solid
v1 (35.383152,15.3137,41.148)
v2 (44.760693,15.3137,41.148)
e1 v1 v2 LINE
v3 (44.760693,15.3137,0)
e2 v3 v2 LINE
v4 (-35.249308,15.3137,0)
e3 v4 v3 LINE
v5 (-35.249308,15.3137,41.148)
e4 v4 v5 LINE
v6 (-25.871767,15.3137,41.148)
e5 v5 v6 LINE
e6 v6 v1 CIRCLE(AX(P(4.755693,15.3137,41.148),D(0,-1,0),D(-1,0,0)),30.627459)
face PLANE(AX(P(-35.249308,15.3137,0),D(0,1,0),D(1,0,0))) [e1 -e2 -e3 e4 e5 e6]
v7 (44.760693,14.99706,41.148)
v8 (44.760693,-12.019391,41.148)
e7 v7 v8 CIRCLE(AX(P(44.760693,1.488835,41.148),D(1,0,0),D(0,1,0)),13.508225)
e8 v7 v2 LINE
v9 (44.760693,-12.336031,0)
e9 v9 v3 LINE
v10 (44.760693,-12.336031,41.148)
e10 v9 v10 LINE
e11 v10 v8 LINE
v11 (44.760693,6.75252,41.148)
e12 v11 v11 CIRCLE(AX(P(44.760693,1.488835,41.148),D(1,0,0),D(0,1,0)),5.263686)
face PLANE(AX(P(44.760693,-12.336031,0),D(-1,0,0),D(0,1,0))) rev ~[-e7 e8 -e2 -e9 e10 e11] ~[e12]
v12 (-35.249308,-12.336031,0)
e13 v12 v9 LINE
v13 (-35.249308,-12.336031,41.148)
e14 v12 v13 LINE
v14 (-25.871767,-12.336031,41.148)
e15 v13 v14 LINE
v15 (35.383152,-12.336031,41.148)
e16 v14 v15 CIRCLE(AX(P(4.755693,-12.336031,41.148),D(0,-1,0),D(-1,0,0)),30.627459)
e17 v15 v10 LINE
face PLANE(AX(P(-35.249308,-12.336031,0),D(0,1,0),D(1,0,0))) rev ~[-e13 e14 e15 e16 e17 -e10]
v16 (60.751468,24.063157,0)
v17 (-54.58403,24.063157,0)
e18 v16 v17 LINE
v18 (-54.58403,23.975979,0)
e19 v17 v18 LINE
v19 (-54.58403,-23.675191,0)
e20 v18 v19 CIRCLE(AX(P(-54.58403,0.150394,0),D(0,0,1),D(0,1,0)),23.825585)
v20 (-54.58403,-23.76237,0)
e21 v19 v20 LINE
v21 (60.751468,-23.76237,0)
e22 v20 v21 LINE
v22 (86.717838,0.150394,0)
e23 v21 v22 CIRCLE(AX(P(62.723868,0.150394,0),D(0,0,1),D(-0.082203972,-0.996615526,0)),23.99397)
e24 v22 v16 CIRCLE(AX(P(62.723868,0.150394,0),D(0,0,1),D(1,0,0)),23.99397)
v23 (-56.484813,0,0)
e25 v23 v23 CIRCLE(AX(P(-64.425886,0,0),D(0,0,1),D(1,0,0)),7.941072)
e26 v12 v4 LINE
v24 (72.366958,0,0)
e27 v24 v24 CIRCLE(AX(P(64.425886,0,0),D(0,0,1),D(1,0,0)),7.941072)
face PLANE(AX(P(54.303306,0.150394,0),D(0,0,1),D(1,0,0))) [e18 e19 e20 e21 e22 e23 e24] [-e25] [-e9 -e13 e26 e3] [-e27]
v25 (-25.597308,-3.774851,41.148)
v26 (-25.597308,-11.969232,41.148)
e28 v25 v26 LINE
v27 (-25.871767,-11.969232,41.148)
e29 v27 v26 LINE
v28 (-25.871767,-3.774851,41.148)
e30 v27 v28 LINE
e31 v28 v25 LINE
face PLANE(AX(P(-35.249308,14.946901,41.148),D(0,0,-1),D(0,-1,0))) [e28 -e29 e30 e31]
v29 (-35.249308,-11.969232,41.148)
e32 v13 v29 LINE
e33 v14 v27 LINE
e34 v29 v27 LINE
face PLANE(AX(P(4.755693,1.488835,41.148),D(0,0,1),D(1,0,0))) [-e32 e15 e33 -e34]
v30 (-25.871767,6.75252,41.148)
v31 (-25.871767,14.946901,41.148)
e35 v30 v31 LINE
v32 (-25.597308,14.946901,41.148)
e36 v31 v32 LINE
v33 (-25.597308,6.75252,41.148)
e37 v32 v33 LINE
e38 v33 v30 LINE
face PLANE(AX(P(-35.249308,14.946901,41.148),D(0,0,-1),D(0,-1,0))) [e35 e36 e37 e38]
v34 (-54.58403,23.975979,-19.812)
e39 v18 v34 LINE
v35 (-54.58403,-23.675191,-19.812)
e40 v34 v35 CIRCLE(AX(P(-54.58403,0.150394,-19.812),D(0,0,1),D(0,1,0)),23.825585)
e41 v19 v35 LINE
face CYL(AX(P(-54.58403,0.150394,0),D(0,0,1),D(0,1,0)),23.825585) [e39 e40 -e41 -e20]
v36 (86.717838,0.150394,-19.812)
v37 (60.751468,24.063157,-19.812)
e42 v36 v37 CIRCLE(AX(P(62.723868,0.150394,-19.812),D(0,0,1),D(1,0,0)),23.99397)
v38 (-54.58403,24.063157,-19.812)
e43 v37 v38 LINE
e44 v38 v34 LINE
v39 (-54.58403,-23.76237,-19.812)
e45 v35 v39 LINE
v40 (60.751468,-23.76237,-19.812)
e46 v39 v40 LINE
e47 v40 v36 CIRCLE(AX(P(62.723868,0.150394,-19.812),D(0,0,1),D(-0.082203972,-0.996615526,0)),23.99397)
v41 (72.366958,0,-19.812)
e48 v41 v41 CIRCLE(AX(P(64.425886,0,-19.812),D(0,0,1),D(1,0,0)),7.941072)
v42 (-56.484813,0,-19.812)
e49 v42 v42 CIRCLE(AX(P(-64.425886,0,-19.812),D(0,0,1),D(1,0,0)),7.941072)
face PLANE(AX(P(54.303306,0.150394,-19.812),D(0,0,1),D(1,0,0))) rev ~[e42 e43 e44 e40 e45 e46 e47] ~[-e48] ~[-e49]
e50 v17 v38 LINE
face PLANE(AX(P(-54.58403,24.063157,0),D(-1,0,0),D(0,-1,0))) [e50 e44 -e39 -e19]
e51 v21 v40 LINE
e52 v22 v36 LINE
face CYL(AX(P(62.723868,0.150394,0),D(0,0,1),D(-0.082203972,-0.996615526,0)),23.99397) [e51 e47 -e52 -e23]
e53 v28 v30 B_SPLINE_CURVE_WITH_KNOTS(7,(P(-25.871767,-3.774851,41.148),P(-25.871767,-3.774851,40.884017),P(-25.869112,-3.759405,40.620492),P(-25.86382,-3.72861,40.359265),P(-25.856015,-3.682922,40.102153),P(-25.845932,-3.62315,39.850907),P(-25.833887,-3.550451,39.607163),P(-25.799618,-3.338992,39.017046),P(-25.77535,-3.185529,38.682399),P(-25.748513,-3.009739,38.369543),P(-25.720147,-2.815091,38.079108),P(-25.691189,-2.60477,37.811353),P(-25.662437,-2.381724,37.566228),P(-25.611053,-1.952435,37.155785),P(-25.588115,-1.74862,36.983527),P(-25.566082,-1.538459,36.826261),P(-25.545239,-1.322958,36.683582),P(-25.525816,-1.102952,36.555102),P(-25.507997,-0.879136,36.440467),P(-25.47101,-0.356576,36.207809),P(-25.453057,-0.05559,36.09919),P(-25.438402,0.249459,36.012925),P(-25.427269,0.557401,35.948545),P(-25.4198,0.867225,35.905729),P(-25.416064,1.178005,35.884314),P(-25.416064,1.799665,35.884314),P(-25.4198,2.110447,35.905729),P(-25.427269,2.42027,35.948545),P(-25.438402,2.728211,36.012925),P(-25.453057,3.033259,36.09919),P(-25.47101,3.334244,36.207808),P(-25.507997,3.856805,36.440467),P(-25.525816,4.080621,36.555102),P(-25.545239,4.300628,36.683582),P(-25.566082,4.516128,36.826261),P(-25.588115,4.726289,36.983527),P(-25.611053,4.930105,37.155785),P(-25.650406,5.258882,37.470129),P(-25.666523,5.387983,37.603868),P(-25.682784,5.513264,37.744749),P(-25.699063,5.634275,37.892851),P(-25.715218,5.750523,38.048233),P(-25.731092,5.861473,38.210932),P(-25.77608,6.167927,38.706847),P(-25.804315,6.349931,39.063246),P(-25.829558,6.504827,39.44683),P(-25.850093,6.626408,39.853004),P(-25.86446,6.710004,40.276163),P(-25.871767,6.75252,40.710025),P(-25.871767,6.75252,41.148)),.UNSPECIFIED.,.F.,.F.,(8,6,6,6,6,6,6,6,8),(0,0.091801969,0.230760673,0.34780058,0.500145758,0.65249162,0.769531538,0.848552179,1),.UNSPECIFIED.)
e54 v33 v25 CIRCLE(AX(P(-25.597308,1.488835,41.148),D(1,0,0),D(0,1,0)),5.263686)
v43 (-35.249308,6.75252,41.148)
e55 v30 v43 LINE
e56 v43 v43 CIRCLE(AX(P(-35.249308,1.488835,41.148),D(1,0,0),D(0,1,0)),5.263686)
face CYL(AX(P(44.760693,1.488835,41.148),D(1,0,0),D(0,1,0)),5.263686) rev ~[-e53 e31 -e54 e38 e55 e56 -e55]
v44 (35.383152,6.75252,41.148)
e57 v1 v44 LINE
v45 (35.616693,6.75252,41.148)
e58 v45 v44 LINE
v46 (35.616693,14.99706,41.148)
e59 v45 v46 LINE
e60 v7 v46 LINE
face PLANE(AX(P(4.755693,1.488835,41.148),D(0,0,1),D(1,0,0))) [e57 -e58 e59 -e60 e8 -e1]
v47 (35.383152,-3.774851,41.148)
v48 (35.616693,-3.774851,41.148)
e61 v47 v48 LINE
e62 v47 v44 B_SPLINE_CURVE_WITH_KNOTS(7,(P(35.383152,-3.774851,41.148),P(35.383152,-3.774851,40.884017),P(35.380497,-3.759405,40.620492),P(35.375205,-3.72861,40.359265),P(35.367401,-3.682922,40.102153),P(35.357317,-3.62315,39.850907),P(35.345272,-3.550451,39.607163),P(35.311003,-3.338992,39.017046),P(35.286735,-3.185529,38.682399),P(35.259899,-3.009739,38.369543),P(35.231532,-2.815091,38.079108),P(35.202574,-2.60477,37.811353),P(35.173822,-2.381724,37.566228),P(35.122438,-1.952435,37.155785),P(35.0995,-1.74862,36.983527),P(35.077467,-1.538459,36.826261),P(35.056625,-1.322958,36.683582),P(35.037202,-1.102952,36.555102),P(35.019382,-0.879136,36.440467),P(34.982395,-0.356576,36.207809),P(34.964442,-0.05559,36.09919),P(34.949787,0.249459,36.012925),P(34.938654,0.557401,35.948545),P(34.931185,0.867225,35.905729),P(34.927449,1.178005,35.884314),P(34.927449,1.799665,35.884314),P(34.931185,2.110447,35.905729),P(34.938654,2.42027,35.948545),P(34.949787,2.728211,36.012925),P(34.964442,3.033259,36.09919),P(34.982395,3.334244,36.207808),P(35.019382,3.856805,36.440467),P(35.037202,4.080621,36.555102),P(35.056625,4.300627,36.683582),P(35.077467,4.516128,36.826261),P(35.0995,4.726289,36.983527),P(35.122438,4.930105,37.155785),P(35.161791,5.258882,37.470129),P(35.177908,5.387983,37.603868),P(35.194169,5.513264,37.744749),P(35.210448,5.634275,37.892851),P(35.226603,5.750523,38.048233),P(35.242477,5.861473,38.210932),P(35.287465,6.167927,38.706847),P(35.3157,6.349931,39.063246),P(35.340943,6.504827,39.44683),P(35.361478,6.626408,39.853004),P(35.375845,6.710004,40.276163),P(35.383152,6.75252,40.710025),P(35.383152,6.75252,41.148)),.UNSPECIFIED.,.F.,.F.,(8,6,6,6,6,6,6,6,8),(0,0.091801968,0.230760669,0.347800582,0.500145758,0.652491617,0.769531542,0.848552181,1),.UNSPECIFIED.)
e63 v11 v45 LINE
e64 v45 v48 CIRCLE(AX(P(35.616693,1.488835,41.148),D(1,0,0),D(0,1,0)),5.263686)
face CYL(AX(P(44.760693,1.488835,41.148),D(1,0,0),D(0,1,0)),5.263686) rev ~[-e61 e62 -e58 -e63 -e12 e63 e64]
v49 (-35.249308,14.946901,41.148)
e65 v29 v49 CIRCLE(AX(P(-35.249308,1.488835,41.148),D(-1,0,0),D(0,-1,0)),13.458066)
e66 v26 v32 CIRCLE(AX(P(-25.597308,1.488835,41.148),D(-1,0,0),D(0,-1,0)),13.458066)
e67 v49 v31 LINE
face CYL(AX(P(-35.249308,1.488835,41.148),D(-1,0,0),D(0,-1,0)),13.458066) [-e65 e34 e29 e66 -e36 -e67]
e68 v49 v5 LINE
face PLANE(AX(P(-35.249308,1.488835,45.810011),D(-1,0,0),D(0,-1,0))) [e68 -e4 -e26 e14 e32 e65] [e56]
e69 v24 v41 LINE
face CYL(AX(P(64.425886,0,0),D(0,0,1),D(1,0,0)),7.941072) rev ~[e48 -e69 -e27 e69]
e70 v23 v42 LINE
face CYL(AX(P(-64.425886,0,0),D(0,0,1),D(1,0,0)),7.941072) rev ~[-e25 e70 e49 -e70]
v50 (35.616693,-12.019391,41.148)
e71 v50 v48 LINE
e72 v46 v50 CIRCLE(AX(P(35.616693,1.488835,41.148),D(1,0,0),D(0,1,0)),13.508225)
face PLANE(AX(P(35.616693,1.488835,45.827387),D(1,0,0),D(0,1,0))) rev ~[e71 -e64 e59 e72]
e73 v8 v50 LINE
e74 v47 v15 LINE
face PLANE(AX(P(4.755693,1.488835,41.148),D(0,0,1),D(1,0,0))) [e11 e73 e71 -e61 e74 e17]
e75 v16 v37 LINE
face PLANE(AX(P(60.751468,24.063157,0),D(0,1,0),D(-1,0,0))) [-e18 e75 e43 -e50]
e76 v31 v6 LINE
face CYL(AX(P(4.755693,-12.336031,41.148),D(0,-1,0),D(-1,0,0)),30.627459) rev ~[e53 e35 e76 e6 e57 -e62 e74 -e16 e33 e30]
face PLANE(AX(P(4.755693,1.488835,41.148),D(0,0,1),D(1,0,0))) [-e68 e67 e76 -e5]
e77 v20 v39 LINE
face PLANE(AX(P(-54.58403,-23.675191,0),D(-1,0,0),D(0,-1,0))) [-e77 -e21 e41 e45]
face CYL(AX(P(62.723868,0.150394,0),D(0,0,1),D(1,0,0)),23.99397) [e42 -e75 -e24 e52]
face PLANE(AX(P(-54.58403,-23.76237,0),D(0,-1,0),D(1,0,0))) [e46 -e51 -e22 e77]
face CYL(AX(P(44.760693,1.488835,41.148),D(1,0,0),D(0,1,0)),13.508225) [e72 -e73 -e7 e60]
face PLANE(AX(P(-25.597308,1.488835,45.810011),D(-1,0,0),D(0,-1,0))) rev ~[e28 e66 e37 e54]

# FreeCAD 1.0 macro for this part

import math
import FreeCAD as App
import Part
import Sketcher
Q = App.Units.Quantity


def add_polygon(sketch, points):
    """Adds a closed chain of lines whose ends are joined by coincident constraints."""
    first, n = sketch.GeometryCount, len(points)
    for a, b in zip(points, points[1:] + points[:1]):
        sketch.addGeometry(Part.LineSegment(App.Vector(*a, 0), App.Vector(*b, 0)), False)
    for i in range(n):
        sketch.addConstraint(Sketcher.Constraint("Coincident", first + i, 2, first + (i + 1) % n, 1))

doc = App.newDocument("Part")
body = doc.addObject("PartDesign::Body", "Body")

# Sketch on XY plane
sketch1 = doc.addObject("Sketcher::SketchObject", "Sketch")
body.addObject(sketch1)
sketch1.AttachmentSupport = (doc.XY_Plane, [""])
sketch1.MapMode = "FlatFace"
sketch1.addGeometry([
    Part.LineSegment(App.Vector(60.75, 24.06, 0), App.Vector(-54.58, 24.06, 0)),  # 0
    Part.LineSegment(App.Vector(-54.58, 24.06, 0), App.Vector(-54.58, 23.98, 0)),  # 1
    Part.ArcOfCircle(Part.Circle(App.Vector(-54.58, 0.15, 0), App.Vector(0, 0, 1), 23.83), math.radians(90), math.radians(270)),  # 2
    Part.LineSegment(App.Vector(-54.58, -23.68, 0), App.Vector(-54.58, -23.76, 0)),  # 3
    Part.LineSegment(App.Vector(-54.58, -23.76, 0), App.Vector(60.75, -23.76, 0)),  # 4
    Part.ArcOfCircle(Part.Circle(App.Vector(62.72, 0.15, 0), App.Vector(0, 0, 1), 23.99), math.radians(-95), math.radians(0)),  # 5
    Part.ArcOfCircle(Part.Circle(App.Vector(62.72, 0.15, 0), App.Vector(0, 0, 1), 23.99), math.radians(0), math.radians(95)),  # 6
], False)
sketch1.addConstraint([
    Sketcher.Constraint("Coincident", 0, 2, 1, 1),
    Sketcher.Constraint("Coincident", 1, 2, 2, 1),
    Sketcher.Constraint("Coincident", 2, 2, 3, 1),
    Sketcher.Constraint("Coincident", 3, 2, 4, 1),
    Sketcher.Constraint("Coincident", 4, 2, 5, 1),
    Sketcher.Constraint("Tangent", 5, 2, 6, 1),
    Sketcher.Constraint("Coincident", 6, 2, 0, 1),
    Sketcher.Constraint("Horizontal", 0),
    Sketcher.Constraint("Vertical", 1),
    Sketcher.Constraint("Vertical", 3),
    Sketcher.Constraint("Horizontal", 4),
    Sketcher.Constraint("Equal", 5, 6),
    Sketcher.Constraint("Horizontal", 2, 3, 5, 3),
    Sketcher.Constraint("Horizontal", 6, 3, 5, 2),
    Sketcher.Constraint("Vertical", 2, 3, 0, 2),
    Sketcher.Constraint("Vertical", 1, 2, 2, 2),
    Sketcher.Constraint("Vertical", 4, 2, 6, 2),
    Sketcher.Constraint("Radius", 5, 23.99397),
    Sketcher.Constraint("DistanceX", 0, 2, 0, 1, 115.335498),
    Sketcher.Constraint("Radius", 2, 23.825585),
    Sketcher.Constraint("DistanceY", 1, 2, 1, 1, 0.087178),
    Sketcher.Constraint("DistanceX", 2, 3, -1, 1, 54.58403),
    Sketcher.Constraint("DistanceY", -1, 1, 1, 2, 23.975979),
])
pad1 = doc.addObject("PartDesign::Pad", "Pad")
body.addObject(pad1)
pad1.Profile = sketch1
pad1.Length = Q("0.78 in")
pad1.Reversed = True

# Sketch on XY plane
sketch2 = doc.addObject("Sketcher::SketchObject", "Sketch001")
body.addObject(sketch2)
sketch2.AttachmentSupport = (doc.XY_Plane, [""])
sketch2.MapMode = "FlatFace"
sketch2.addGeometry(Part.Circle(App.Vector(-64, 0, 0), App.Vector(0, 0, 1), 8), False)
sketch2.addConstraint([
    Sketcher.Constraint("PointOnObject", 0, 3, -1),
    Sketcher.Constraint("Diameter", 0, 15.882145),
    Sketcher.Constraint("DistanceX", 0, 3, -1, 1, 64.425886),
])
pocket1 = doc.addObject("PartDesign::Pocket", "Pocket")
body.addObject(pocket1)
pocket1.Profile = sketch2
pocket1.Length = Q("2.11 in")

# Sketch on XY plane
sketch3 = doc.addObject("Sketcher::SketchObject", "Sketch002")
body.addObject(sketch3)
sketch3.AttachmentSupport = (doc.XY_Plane, [""])
sketch3.MapMode = "FlatFace"
sketch3.addGeometry([
    Part.Circle(App.Vector(-64, 0, 0), App.Vector(0, 0, 1), 8),
    Part.Circle(App.Vector(64, 0, 0), App.Vector(0, 0, 1), 8),
], False)
sketch3.addConstraint([
    Sketcher.Constraint("Equal", 0, 1),
    Sketcher.Constraint("Symmetric", 0, 3, 1, 3, -1, 1),
    Sketcher.Constraint("PointOnObject", 0, 3, -1),
    Sketcher.Constraint("Diameter", 0, 15.882145),
    Sketcher.Constraint("DistanceX", 0, 3, 1, 3, 128.851771),
])
pocket2 = doc.addObject("PartDesign::Pocket", "Pocket001")
body.addObject(pocket2)
pocket2.Profile = sketch3
pocket2.Length = Q("2.84 in")

# Sketch on XY plane
sketch4 = doc.addObject("Sketcher::SketchObject", "Sketch003")
body.addObject(sketch4)
sketch4.AttachmentSupport = (doc.XY_Plane, [""])
sketch4.MapMode = "FlatFace"
add_polygon(sketch4, [(-35, 15), (-35, -12), (45, -12), (45, 15)])  # lines 0-3
sketch4.addConstraint([
    Sketcher.Constraint("Vertical", 0),
    Sketcher.Constraint("Horizontal", 1),
    Sketcher.Constraint("Vertical", 2),
    Sketcher.Constraint("Horizontal", 3),
    Sketcher.Constraint("DistanceX", 1, 1, 1, 2, Q("3.15 in")),
    Sketcher.Constraint("DistanceY", 0, 2, 0, 1, 27.64973),
    Sketcher.Constraint("DistanceY", -1, 1, 2, 2, 15.3137),
    Sketcher.Constraint("DistanceX", 0, 2, -1, 1, 35.249308),
])
pad2 = doc.addObject("PartDesign::Pad", "Pad001")
body.addObject(pad2)
pad2.Profile = sketch4
pad2.Length = Q("1.62 in")

# Sketch on XZ plane
sketch5 = doc.addObject("Sketcher::SketchObject", "Sketch004")
body.addObject(sketch5)
sketch5.AttachmentSupport = (doc.XZ_Plane, [""])
sketch5.MapMode = "FlatFace"
sketch5.AttachmentOffset = App.Placement(App.Vector(0, 0, 12.336031), App.Rotation())
sketch5.addGeometry(Part.Circle(App.Vector(5, 41, 0), App.Vector(0, 0, 1), 31), False)
sketch5.addConstraint([
    Sketcher.Constraint("DistanceY", -1, 1, 0, 3, Q("1.62 in")),
    Sketcher.Constraint("Diameter", 0, 61.254919),
    Sketcher.Constraint("DistanceX", -1, 1, 0, 3, 4.755693),
])
pocket3 = doc.addObject("PartDesign::Pocket", "Pocket002")
body.addObject(pocket3)
pocket3.Profile = sketch5
pocket3.Length = Q("2.54 in")

# Sketch on YZ plane
sketch6 = doc.addObject("Sketcher::SketchObject", "Sketch005")
body.addObject(sketch6)
sketch6.AttachmentSupport = (doc.YZ_Plane, [""])
sketch6.MapMode = "FlatFace"
sketch6.AttachmentOffset = App.Placement(App.Vector(0, 0, -35.249308), App.Rotation())
sketch6.addGeometry([
    Part.LineSegment(App.Vector(15, 41, 0), App.Vector(-12, 41, 0)),
    Part.ArcOfCircle(Part.Circle(App.Vector(1, 41, 0), App.Vector(0, 0, 1), 13), math.radians(0), math.radians(180)),
], False)
sketch6.addConstraint([
    Sketcher.Constraint("Coincident", 0, 1, 1, 1),
    Sketcher.Constraint("Coincident", 1, 2, 0, 2),
    Sketcher.Constraint("Horizontal", 0),
    Sketcher.Constraint("Horizontal", 1, 3, 0, 1),
    Sketcher.Constraint("DistanceY", -1, 1, 1, 3, Q("1.62 in")),
    Sketcher.Constraint("Radius", 1, 13.458066),
    Sketcher.Constraint("DistanceX", -1, 1, 0, 1, 14.946901),
])
pad3 = doc.addObject("PartDesign::Pad", "Pad002")
body.addObject(pad3)
pad3.Profile = sketch6
pad3.Length = Q("0.38 in")

# Sketch on YZ plane
sketch7 = doc.addObject("Sketcher::SketchObject", "Sketch006")
body.addObject(sketch7)
sketch7.AttachmentSupport = (doc.YZ_Plane, [""])
sketch7.MapMode = "FlatFace"
sketch7.AttachmentOffset = App.Placement(App.Vector(0, 0, 44.760693), App.Rotation())
sketch7.addGeometry([
    Part.LineSegment(App.Vector(-12, 41, 0), App.Vector(15, 41, 0)),
    Part.ArcOfCircle(Part.Circle(App.Vector(1, 41, 0), App.Vector(0, 0, 1), 14), math.radians(0), math.radians(180)),
], False)
sketch7.addConstraint([
    Sketcher.Constraint("Coincident", 0, 1, 1, 2),
    Sketcher.Constraint("Coincident", 1, 1, 0, 2),
    Sketcher.Constraint("Horizontal", 0),
    Sketcher.Constraint("Horizontal", 1, 3, 0, 1),
    Sketcher.Constraint("DistanceY", -1, 1, 1, 3, Q("1.62 in")),
    Sketcher.Constraint("Radius", 1, 13.508225),
    Sketcher.Constraint("DistanceX", 0, 1, -1, 1, 12.019391),
])
pad4 = doc.addObject("PartDesign::Pad", "Pad003")
body.addObject(pad4)
pad4.Profile = sketch7
pad4.Length = Q("0.36 in")
pad4.Reversed = True

# Sketch on YZ plane
sketch8 = doc.addObject("Sketcher::SketchObject", "Sketch007")
body.addObject(sketch8)
sketch8.AttachmentSupport = (doc.YZ_Plane, [""])
sketch8.MapMode = "FlatFace"
sketch8.AttachmentOffset = App.Placement(App.Vector(0, 0, 44.760693), App.Rotation())
sketch8.addGeometry(Part.Circle(App.Vector(1, 41, 0), App.Vector(0, 0, 1), 5), False)
sketch8.addConstraint([
    Sketcher.Constraint("DistanceY", -1, 1, 0, 3, Q("1.62 in")),
    Sketcher.Constraint("Diameter", 0, 10.527371),
    Sketcher.Constraint("DistanceX", -1, 1, 0, 3, 1.488835),
])
pocket4 = doc.addObject("PartDesign::Pocket", "Pocket003")
body.addObject(pocket4)
pocket4.Profile = sketch8
pocket4.Length = Q("4.49 in")

doc.recompute()
